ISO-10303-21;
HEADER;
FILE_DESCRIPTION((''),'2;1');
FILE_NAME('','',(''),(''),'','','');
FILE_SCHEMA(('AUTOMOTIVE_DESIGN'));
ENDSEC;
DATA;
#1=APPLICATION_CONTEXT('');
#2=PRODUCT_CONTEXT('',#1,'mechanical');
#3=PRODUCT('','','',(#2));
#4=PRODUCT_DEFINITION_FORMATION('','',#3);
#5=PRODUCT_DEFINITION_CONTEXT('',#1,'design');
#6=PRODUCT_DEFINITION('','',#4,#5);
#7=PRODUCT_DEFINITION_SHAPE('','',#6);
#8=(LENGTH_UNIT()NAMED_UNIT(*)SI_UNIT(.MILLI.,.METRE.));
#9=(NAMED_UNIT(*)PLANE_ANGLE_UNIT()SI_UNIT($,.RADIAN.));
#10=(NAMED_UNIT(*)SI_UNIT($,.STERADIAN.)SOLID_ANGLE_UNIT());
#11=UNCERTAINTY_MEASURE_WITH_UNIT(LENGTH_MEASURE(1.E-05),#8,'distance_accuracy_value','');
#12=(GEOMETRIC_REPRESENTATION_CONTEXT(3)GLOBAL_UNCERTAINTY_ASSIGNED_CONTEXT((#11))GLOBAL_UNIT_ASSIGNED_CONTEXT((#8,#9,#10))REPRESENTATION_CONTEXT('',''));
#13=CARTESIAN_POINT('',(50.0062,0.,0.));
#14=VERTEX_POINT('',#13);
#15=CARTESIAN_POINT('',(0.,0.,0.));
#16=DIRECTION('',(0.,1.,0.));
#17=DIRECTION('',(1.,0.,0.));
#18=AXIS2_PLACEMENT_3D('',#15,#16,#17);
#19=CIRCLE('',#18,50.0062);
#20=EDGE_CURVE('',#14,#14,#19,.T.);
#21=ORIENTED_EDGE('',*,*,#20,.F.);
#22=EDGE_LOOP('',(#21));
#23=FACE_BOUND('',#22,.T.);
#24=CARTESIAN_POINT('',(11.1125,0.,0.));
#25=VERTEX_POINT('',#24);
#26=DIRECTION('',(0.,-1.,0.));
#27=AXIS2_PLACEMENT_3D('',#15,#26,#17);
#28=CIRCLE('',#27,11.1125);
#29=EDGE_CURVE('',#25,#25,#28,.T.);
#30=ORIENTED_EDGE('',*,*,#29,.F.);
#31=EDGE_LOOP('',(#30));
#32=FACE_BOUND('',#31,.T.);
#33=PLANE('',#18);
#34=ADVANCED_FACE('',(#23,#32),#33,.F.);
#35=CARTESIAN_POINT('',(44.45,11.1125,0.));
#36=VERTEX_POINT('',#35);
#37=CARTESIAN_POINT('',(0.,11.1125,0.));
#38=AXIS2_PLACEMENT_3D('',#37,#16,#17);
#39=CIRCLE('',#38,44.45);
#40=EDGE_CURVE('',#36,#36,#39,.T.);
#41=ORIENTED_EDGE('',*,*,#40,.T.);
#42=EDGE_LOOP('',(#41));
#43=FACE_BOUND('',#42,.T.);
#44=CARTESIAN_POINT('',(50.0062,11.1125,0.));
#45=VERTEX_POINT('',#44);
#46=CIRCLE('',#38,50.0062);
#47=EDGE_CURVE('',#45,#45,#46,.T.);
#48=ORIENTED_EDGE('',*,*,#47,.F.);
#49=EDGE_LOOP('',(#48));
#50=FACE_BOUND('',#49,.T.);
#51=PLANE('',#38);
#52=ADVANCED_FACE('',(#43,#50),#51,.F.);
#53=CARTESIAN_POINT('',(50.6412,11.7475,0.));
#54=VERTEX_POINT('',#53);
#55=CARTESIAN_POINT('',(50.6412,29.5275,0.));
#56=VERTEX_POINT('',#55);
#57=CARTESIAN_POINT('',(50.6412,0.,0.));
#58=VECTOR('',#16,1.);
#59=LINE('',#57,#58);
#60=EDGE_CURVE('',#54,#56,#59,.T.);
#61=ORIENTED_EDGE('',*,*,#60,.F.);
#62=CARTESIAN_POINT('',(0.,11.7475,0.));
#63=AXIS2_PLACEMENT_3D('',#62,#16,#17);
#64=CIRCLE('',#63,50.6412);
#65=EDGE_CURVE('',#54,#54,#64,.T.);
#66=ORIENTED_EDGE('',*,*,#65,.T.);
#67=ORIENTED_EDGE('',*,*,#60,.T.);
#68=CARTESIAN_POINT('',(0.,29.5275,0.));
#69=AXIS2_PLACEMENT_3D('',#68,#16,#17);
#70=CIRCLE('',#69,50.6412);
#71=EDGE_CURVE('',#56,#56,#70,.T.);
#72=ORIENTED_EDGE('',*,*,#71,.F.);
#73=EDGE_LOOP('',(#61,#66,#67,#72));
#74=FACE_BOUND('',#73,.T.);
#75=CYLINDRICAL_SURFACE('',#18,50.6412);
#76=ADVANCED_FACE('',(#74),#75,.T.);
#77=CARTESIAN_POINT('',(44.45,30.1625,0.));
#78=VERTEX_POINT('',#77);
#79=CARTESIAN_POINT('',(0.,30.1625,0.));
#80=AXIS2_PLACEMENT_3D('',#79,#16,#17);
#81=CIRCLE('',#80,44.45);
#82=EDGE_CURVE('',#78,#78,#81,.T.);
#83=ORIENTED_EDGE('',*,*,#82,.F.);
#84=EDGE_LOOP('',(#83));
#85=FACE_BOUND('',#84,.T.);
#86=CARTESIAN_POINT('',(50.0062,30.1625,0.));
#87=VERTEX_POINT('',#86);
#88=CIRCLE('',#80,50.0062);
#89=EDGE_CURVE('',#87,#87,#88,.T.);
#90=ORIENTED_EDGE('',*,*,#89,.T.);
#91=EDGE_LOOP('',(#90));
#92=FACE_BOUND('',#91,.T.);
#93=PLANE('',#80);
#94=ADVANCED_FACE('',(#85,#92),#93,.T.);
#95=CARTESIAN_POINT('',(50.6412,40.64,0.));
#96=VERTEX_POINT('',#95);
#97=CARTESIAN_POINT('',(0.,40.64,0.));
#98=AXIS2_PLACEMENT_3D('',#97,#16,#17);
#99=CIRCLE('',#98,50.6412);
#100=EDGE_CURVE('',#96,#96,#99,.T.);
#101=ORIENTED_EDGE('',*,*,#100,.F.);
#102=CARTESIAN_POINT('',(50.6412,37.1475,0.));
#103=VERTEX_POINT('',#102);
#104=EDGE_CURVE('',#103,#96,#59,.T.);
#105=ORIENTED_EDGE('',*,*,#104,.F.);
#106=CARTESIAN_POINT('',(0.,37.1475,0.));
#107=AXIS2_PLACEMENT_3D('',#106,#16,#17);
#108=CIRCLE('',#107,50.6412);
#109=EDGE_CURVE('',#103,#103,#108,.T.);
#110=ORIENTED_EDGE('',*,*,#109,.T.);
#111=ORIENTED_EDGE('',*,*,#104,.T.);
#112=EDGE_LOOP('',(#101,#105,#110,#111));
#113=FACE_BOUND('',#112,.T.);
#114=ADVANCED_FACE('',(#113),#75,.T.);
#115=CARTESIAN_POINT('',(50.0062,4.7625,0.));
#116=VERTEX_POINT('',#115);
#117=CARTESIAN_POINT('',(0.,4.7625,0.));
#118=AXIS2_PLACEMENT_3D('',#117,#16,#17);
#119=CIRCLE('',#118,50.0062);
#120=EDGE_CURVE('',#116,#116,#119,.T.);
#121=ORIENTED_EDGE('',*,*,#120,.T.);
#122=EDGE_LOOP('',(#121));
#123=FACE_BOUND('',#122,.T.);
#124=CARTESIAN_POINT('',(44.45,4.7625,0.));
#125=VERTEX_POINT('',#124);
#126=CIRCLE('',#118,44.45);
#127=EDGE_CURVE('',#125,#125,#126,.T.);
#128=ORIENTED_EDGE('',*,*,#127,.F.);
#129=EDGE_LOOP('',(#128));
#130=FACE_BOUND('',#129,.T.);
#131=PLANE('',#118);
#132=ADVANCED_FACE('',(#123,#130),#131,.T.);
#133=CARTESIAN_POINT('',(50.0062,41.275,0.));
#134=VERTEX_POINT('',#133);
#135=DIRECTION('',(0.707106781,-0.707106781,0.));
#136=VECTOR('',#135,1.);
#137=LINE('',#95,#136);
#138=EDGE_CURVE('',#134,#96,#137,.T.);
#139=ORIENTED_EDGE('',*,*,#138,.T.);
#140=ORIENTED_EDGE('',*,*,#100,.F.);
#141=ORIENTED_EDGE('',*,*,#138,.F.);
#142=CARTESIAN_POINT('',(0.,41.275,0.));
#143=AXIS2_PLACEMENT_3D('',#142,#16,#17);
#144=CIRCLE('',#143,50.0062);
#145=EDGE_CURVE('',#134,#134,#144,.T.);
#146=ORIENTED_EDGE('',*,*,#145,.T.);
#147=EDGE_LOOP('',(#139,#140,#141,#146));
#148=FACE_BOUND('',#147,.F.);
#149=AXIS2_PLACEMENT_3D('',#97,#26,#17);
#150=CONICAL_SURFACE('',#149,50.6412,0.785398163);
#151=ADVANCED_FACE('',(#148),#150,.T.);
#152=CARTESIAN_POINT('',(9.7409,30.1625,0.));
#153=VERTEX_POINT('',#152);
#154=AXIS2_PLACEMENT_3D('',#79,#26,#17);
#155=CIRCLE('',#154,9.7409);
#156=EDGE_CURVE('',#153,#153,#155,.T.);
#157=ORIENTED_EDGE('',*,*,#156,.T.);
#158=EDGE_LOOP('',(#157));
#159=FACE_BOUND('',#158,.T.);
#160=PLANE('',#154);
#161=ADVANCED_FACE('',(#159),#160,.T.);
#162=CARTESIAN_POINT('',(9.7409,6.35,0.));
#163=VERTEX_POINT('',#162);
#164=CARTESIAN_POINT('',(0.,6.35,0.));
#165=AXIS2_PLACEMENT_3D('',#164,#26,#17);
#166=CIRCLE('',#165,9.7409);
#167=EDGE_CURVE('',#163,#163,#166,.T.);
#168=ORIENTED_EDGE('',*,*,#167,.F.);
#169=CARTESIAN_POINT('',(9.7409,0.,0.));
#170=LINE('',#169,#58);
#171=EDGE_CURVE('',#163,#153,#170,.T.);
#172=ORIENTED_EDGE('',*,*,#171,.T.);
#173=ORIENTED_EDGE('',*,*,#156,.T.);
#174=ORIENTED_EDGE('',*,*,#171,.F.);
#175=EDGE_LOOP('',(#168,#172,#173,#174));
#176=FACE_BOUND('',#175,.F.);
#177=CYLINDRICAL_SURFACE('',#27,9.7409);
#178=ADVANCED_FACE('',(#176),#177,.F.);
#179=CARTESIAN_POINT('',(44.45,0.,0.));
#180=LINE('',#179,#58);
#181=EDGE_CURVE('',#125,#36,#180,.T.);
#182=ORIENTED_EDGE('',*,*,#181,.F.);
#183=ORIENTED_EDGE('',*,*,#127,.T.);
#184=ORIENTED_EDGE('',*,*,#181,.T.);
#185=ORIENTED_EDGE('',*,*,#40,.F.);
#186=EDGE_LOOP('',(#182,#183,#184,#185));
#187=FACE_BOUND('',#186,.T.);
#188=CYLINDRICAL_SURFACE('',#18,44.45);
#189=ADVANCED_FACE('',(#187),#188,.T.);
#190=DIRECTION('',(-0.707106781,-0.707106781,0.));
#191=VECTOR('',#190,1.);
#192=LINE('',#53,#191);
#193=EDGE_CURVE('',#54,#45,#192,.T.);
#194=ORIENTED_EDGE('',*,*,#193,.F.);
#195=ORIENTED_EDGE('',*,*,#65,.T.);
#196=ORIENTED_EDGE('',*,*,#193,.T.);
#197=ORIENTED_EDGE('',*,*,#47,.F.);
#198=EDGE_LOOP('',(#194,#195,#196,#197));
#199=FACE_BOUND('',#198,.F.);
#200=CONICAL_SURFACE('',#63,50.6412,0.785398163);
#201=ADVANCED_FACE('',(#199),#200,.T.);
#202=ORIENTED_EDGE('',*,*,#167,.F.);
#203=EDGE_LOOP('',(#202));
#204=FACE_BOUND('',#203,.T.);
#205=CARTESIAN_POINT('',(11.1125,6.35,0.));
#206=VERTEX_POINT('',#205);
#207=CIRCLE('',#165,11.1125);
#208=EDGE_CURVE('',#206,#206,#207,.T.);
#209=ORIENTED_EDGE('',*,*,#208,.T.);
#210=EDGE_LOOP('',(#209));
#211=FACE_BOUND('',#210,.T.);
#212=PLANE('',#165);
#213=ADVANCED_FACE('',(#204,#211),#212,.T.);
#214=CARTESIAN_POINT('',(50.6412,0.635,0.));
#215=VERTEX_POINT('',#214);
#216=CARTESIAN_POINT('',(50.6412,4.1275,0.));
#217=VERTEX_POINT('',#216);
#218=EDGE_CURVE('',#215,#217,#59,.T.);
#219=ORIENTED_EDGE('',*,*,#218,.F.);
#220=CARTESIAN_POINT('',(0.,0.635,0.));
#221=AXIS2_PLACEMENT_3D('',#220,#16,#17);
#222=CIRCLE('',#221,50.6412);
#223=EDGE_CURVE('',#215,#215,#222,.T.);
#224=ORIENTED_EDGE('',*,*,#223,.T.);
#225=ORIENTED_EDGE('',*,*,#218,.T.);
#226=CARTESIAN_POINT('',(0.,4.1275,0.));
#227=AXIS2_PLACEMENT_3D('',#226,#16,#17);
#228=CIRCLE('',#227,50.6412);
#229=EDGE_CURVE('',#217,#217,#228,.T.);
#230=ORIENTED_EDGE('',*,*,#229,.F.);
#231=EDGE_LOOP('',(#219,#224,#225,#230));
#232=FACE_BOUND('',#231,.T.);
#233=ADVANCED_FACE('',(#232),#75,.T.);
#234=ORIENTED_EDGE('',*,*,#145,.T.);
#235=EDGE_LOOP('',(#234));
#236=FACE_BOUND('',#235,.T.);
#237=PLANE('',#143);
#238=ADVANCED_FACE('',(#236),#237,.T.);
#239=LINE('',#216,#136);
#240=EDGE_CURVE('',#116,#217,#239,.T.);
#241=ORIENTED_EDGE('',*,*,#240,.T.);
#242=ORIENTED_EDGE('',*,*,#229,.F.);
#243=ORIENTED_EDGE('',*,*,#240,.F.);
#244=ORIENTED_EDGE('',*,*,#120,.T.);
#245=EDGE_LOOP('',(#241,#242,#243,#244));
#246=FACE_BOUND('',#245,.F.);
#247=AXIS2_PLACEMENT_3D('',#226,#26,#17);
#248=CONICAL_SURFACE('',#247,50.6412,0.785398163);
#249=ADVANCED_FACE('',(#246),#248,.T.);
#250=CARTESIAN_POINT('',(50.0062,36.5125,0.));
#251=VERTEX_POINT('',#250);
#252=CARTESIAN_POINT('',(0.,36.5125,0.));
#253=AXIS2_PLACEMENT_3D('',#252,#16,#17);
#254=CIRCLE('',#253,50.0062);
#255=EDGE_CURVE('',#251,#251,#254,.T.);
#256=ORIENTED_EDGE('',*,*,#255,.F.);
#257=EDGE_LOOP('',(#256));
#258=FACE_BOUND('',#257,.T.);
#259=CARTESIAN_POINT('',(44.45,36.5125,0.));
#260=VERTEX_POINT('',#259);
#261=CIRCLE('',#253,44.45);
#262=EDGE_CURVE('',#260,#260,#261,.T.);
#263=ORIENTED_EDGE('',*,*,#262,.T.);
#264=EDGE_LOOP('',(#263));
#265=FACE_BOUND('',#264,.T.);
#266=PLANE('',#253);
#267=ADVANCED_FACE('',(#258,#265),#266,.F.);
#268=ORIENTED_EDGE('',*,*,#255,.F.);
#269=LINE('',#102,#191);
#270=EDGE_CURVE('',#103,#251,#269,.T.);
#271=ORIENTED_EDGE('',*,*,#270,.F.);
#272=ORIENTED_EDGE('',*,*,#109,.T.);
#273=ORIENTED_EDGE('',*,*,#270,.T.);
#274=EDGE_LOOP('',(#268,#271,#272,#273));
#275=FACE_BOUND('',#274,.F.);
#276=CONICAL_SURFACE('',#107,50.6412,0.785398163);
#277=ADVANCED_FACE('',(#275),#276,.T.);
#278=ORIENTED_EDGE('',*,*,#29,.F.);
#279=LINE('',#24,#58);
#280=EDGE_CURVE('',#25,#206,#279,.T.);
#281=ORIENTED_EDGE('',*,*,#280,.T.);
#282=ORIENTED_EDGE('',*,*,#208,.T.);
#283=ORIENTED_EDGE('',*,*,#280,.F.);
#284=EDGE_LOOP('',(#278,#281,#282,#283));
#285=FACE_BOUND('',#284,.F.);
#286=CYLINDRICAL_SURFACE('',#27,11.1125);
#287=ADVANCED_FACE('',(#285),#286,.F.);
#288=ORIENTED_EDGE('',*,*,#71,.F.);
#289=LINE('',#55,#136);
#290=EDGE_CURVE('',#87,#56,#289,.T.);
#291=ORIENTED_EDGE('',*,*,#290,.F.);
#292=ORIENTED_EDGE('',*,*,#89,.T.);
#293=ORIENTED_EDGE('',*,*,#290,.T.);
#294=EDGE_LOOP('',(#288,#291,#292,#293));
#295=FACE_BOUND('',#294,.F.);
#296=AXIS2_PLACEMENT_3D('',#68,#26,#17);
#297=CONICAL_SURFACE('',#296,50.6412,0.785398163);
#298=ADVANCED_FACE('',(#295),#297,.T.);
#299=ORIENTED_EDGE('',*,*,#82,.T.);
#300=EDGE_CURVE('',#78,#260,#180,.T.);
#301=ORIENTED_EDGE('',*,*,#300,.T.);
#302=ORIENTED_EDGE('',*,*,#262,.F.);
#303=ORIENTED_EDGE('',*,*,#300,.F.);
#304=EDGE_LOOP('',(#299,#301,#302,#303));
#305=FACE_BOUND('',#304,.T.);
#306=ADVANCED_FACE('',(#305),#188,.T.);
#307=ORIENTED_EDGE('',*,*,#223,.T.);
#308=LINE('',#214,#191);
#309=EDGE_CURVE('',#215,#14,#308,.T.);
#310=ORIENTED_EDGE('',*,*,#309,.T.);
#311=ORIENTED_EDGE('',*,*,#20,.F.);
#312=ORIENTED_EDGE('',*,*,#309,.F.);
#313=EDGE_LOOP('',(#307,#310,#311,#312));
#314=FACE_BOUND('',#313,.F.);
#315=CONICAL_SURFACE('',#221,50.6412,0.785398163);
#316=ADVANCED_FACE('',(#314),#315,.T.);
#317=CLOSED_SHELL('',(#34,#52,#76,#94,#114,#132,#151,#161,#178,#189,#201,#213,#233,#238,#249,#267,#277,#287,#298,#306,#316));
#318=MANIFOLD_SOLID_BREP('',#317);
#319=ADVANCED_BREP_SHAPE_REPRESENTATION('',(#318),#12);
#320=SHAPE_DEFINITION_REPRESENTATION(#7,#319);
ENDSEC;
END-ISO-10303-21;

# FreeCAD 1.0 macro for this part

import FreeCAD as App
import Part
import Sketcher

V = App.Vector
Q = App.Units.Quantity


def edges_at(feature, points):
    """Names of the edges that pass closest to the given points."""
    edges = feature.Shape.Edges
    near = lambda p: min(range(len(edges)), key=lambda i: edges[i].distToShape(Part.Vertex(*p))[0])
    return sorted({f"Edge{near(p) + 1}" for p in points})


def add_polygon(sketch, points):
    """Adds a closed chain of lines whose ends are joined by coincident constraints."""
    first, n = sketch.GeometryCount, len(points)
    for a, b in zip(points, points[1:] + points[:1]):
        sketch.addGeometry(Part.LineSegment(App.Vector(*a, 0), App.Vector(*b, 0)), False)
    for i in range(n):
        sketch.addConstraint(Sketcher.Constraint("Coincident", first + i, 2, first + (i + 1) % n, 1))

doc = App.newDocument("Part")
body = doc.addObject("PartDesign::Body", "Body")

# Sketch on XY plane
sketch1 = body.newObject("Sketcher::SketchObject", "Sketch")
sketch1.AttachmentSupport = (doc.getObject("XY_Plane"), [""])
sketch1.MapMode = "FlatFace"
add_polygon(sketch1, [(0, 41.3), (0, 0), (50.6, 0), (50.6, 4.8), (44.5, 4.8), (44.5, 11.1), (50.6, 11.1), (50.6, 30.2), (44.5, 30.2), (44.5, 36.5), (50.6, 36.5), (50.6, 41.3)])  # lines 0-11
sketch1.addConstraint([
    Sketcher.Constraint("Vertical", 0),
    Sketcher.Constraint("Horizontal", 1),
    Sketcher.Constraint("Vertical", 2),
    Sketcher.Constraint("Horizontal", 3),
    Sketcher.Constraint("Vertical", 4),
    Sketcher.Constraint("Horizontal", 5),
    Sketcher.Constraint("Vertical", 6),
    Sketcher.Constraint("Horizontal", 7),
    Sketcher.Constraint("Vertical", 8),
    Sketcher.Constraint("Horizontal", 9),
    Sketcher.Constraint("Vertical", 10),
    Sketcher.Constraint("Horizontal", 11),
    Sketcher.Constraint("Coincident", 0, 2, -1, 1),
    Sketcher.Constraint("Vertical", 2, 2, 5, 2),
    Sketcher.Constraint("Vertical", 4, 2, 7, 2),
    Sketcher.Constraint("Vertical", 6, 2, 9, 2),
    Sketcher.Constraint("Equal", 4, 8),
    Sketcher.Constraint("Equal", 2, 10),
    Sketcher.Constraint("DistanceY", 4, 1, 4, 2, Q("0.25 in")),
    Sketcher.Constraint("DistanceY", 6, 1, 6, 2, Q("0.75 in")),
    Sketcher.Constraint("DistanceY", 0, 2, 0, 1, Q("1.625 in")),
    Sketcher.Constraint("DistanceX", -1, 1, 3, 2, Q("1.75 in")),
    Sketcher.Constraint("DistanceX", 1, 1, 1, 2, 50.6412),
])
revolution = body.newObject("PartDesign::Revolution", "Revolution")
revolution.Profile = sketch1
revolution.ReferenceAxis = (sketch1, ["V_Axis"])
revolution.Angle = 360
doc.recompute()

chamfer = body.newObject("PartDesign::Chamfer", "Chamfer")
chamfer.Base = (revolution, edges_at(revolution, [
    (-50.641, 0, 0),
    (-50.641, 4.763, 0),
    (-50.641, 11.113, 0),
    (-50.641, 30.163, 0),
    (-50.641, 36.513, 0),
    (-50.641, 41.275, 0),
]))
chamfer.Size = Q("0.025 in")

# Sketch on XZ plane
sketch2 = body.newObject("Sketcher::SketchObject", "Sketch001")
sketch2.AttachmentSupport = (doc.getObject("XZ_Plane"), [""])
sketch2.MapMode = "FlatFace"
sketch2.addGeometry(Part.Circle(V(0, 0, 0), V(0, 0, 1), 10), False)
sketch2.addConstraint([
    Sketcher.Constraint("Coincident", 0, 3, -1, 1),
    Sketcher.Constraint("Diameter", 0, Q("0.767 in")),
])
pocket1 = body.newObject("PartDesign::Pocket", "Pocket")
pocket1.Profile = sketch2
pocket1.Length = Q("1.1875 in")

# Sketch on XZ plane
sketch3 = body.newObject("Sketcher::SketchObject", "Sketch002")
sketch3.AttachmentSupport = (doc.getObject("XZ_Plane"), [""])
sketch3.MapMode = "FlatFace"
sketch3.addGeometry(Part.Circle(V(0, 0, 0), V(0, 0, 1), 11), False)
sketch3.addConstraint([
    Sketcher.Constraint("Coincident", 0, 3, -1, 1),
    Sketcher.Constraint("Diameter", 0, Q("0.875 in")),
])
pocket2 = body.newObject("PartDesign::Pocket", "Pocket001")
pocket2.Profile = sketch3
pocket2.Length = Q("0.25 in")

doc.recompute()
